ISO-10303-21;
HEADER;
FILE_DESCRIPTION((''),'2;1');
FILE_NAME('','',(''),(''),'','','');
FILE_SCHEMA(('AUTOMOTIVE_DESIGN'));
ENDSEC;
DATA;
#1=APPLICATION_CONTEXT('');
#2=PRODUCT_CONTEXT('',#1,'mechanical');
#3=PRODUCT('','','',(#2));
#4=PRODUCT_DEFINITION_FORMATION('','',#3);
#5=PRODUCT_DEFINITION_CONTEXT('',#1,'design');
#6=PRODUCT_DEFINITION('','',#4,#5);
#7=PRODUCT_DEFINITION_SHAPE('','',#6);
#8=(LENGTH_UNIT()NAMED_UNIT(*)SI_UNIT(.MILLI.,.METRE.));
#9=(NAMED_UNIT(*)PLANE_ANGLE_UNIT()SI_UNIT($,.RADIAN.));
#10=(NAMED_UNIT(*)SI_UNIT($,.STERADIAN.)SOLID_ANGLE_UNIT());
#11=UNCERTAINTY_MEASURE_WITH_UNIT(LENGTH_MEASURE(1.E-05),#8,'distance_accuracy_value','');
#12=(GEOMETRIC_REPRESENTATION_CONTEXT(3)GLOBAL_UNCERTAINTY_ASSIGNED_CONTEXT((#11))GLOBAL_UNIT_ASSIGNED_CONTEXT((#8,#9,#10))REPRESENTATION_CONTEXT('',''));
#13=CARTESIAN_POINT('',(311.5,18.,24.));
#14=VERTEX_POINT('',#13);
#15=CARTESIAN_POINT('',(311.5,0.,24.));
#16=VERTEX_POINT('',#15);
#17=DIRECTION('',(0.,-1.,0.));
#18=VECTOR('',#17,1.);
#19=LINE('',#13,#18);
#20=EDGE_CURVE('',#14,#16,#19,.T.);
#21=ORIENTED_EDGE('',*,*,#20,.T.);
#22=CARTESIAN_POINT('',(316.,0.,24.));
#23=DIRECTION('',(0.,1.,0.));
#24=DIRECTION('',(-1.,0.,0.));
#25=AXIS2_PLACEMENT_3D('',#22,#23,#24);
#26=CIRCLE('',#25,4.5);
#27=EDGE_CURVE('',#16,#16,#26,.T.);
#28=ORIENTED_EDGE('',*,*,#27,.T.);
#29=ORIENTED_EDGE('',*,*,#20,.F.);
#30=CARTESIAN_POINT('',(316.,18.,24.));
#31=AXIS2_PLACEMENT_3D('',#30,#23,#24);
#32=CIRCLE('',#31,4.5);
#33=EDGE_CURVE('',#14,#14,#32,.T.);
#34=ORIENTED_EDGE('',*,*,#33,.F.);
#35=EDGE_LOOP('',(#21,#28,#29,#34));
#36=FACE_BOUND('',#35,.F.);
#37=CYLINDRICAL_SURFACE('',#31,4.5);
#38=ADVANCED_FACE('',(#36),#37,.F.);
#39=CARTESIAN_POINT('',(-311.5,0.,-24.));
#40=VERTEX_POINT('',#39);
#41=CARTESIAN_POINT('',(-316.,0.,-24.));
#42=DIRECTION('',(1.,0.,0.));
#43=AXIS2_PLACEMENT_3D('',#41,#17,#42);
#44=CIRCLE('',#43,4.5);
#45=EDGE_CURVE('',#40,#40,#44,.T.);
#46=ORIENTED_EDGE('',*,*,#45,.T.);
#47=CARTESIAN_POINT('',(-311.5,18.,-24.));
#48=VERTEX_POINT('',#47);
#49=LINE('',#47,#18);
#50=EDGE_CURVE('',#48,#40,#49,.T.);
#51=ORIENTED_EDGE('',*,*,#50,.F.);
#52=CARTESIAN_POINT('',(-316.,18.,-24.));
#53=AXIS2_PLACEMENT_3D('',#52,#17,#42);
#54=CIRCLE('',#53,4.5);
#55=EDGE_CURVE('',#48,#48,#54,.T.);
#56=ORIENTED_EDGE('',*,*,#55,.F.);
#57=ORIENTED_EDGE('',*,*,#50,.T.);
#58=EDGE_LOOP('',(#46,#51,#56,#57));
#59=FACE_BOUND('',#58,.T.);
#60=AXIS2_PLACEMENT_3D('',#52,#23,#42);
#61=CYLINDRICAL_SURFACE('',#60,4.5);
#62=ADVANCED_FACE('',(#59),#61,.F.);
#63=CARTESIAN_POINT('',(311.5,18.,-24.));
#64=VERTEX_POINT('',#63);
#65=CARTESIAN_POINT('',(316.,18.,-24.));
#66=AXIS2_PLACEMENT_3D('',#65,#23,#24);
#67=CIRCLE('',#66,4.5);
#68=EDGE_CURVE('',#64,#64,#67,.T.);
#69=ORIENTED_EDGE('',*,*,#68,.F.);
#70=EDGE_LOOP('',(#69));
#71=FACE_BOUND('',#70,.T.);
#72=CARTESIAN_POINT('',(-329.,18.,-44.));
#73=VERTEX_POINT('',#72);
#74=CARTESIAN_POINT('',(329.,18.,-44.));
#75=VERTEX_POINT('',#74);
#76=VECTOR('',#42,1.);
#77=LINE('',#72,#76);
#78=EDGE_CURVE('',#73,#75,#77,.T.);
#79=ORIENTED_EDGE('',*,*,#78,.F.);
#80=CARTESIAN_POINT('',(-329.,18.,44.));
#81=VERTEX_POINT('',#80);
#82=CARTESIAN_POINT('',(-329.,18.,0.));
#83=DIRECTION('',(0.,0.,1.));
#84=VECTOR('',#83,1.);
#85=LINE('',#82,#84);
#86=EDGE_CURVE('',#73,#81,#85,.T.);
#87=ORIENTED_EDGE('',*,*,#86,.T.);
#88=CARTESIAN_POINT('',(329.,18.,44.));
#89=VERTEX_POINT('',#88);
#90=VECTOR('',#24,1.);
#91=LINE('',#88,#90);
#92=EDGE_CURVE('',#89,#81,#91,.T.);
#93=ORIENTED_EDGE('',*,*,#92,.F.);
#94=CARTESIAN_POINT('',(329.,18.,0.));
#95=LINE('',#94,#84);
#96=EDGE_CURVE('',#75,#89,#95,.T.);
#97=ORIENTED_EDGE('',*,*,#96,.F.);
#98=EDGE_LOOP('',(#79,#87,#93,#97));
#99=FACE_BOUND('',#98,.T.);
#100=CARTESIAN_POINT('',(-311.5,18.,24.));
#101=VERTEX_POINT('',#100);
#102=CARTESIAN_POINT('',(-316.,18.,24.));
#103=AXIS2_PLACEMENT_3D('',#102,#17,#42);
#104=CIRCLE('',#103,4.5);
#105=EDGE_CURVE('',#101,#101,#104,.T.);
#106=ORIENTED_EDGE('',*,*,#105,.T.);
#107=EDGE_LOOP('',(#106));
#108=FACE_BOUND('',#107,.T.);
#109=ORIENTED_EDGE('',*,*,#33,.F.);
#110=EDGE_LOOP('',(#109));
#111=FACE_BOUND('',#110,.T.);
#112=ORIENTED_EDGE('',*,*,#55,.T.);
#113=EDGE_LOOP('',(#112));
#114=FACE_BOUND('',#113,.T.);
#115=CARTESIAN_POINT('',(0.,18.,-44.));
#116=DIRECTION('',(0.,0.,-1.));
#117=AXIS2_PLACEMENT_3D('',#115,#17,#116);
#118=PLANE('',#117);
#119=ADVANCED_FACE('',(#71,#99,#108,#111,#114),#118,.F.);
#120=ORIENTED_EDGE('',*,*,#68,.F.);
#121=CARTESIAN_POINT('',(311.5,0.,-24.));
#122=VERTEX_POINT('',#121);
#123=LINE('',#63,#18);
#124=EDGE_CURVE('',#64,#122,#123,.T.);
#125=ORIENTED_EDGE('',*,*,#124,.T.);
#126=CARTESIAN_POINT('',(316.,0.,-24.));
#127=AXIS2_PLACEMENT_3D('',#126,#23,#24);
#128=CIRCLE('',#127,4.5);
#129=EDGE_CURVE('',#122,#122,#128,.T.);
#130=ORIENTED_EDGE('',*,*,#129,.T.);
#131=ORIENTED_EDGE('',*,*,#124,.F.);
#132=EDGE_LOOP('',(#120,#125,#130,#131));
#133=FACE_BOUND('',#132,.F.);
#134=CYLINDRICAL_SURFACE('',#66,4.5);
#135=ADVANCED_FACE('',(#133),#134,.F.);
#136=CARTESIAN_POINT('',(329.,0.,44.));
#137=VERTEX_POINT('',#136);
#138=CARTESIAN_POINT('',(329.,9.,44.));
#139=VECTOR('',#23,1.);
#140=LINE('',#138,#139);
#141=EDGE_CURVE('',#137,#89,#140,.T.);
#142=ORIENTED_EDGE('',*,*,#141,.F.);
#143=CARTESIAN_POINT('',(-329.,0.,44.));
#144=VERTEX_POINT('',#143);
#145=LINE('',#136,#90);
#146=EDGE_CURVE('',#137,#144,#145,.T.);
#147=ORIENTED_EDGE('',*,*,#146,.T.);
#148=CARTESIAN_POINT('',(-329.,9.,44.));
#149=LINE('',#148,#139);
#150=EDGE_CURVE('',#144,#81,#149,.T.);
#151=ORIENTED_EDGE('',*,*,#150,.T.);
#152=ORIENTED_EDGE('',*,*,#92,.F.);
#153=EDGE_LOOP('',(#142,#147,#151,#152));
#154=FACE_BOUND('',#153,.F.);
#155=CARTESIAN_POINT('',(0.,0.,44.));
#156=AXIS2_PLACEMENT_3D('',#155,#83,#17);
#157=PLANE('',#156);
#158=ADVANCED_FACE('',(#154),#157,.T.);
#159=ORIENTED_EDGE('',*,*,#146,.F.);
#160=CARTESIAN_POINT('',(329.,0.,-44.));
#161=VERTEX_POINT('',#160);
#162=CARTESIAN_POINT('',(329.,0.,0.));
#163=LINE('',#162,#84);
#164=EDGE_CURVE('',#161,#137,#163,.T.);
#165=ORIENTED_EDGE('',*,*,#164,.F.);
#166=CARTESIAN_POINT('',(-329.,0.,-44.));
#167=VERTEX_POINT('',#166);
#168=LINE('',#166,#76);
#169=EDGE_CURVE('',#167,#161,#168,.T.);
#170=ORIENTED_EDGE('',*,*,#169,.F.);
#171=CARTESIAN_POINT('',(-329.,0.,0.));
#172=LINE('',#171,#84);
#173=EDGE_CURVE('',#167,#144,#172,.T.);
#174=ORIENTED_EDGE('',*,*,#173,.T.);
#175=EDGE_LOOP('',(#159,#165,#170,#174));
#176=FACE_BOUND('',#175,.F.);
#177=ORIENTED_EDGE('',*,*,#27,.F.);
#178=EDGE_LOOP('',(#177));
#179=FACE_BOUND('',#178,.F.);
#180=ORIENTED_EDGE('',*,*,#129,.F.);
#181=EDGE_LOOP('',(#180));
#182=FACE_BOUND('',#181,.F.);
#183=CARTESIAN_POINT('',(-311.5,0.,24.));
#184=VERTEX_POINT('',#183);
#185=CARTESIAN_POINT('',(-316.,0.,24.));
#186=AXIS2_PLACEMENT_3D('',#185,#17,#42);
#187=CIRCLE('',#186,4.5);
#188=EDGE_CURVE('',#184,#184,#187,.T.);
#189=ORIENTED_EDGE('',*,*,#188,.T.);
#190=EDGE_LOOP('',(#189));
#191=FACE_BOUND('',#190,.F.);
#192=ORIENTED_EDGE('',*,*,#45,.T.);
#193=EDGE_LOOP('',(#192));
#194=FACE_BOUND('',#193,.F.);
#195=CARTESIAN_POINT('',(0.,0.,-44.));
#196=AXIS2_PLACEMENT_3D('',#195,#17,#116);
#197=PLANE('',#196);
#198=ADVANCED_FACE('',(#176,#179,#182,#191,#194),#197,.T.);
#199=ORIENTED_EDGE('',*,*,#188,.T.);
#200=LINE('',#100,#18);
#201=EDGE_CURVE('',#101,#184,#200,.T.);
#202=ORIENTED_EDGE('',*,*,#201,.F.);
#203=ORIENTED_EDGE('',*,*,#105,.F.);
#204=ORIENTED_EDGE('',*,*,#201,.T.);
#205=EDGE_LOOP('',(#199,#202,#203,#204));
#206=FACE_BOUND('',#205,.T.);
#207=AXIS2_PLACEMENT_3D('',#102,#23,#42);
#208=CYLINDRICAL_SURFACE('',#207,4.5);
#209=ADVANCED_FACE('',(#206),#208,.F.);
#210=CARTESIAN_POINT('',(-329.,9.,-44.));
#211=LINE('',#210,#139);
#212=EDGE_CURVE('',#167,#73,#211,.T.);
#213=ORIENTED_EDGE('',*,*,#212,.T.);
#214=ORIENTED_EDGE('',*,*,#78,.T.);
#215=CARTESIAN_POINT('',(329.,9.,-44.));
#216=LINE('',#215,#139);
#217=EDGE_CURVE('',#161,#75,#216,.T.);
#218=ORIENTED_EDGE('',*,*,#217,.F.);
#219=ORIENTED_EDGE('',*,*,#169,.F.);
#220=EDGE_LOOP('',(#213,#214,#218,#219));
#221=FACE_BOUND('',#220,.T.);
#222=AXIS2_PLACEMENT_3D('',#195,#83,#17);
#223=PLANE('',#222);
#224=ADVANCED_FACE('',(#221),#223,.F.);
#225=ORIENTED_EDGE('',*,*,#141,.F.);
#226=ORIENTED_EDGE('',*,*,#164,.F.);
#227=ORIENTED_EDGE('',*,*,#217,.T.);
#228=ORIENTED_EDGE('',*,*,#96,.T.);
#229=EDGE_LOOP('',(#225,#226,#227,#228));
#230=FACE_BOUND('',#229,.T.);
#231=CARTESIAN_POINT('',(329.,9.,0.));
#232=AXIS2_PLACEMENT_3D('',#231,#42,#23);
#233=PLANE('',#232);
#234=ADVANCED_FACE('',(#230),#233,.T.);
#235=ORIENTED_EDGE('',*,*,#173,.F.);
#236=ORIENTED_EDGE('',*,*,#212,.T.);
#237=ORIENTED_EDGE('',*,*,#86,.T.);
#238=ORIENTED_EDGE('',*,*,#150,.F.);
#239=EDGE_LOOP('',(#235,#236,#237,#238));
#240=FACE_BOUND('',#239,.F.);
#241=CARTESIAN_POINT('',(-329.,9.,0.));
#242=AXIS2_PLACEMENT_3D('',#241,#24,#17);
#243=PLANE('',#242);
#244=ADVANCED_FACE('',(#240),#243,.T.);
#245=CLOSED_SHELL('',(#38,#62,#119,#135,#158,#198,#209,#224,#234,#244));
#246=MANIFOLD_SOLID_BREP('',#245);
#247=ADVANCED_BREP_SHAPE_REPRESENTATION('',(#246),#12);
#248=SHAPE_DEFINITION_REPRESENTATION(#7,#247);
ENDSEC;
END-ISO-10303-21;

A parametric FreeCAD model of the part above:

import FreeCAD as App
import Part
import Sketcher
from FreeCAD import Vector
Q = App.Units.Quantity

doc = App.newDocument("Part")
params = doc.addObject("Spreadsheet::Sheet", "Params")
for row, (alias, value) in enumerate([
    ("sketch1_width", "18 mm"),
    ("sketch1_height", "88 mm"),
    ("pad1_length", "329 mm"),
    ("sketch2_diameter", "9 mm"),
], start=1):
    params.set(f"A{row}", alias)
    params.set(f"B{row}", "=" + value)
    params.setAlias(f"B{row}", alias)

body = doc.addObject("PartDesign::Body", "Body")

# Sketch on YZ plane
sketch1 = body.newObject("Sketcher::SketchObject", "Sketch")
sketch1.AttachmentSupport = (doc.getObject("YZ_Plane"), [""])
sketch1.MapMode = "FlatFace"
sketch1.addGeometry([
    Part.LineSegment(Vector(0, 44, 0), Vector(0, -44, 0)),
    Part.LineSegment(Vector(0, -44, 0), Vector(18, -44, 0)),
    Part.LineSegment(Vector(18, -44, 0), Vector(18, 44, 0)),
    Part.LineSegment(Vector(18, 44, 0), Vector(0, 44, 0)),
], False)
sketch1.addConstraint([
    Sketcher.Constraint("Coincident", 0, 2, 1, 1),
    Sketcher.Constraint("Coincident", 1, 2, 2, 1),
    Sketcher.Constraint("Coincident", 2, 2, 3, 1),
    Sketcher.Constraint("Coincident", 3, 2, 0, 1),
    Sketcher.Constraint("Vertical", 0),
    Sketcher.Constraint("Horizontal", 1),
    Sketcher.Constraint("Vertical", 2),
    Sketcher.Constraint("Horizontal", 3),
    Sketcher.Constraint("Symmetric", 0, 2, 3, 2, -1, 1),
    Sketcher.Constraint("DistanceX", 1, 1, 1, 2, Q("18 mm")),
    Sketcher.Constraint("DistanceY", 0, 2, 0, 1, Q("88 mm")),
])
sketch1.setExpression("Constraints[9]", "Params.sketch1_width")
sketch1.setExpression("Constraints[10]", "Params.sketch1_height")
pad1 = body.newObject("PartDesign::Pad", "Pad")
pad1.Profile = sketch1
pad1.setExpression("Length", "Params.pad1_length")

# Sketch on XZ plane
sketch2 = body.newObject("Sketcher::SketchObject", "Sketch001")
sketch2.AttachmentSupport = (doc.getObject("XZ_Plane"), [""])
sketch2.MapMode = "FlatFace"
sketch2.AttachmentOffset = App.Placement(Vector(0, 0, -18), App.Rotation())
sketch2.addGeometry([
    Part.Circle(Vector(316, 24, 0), Vector(0, 0, 1), 4.5),
    Part.Circle(Vector(316, -24, 0), Vector(0, 0, 1), 4.5),
], False)
sketch2.addConstraint([
    Sketcher.Constraint("Equal", 0, 1),
    Sketcher.Constraint("Symmetric", 0, 3, 1, 3, -1),
    Sketcher.Constraint("Diameter", 0, Q("9 mm")),
    Sketcher.Constraint("DistanceX", -1, 1, 0, 3, Q("316 mm")),
    Sketcher.Constraint("DistanceY", -1, 1, 0, 3, Q("24 mm")),
])
sketch2.setExpression("Constraints[2]", "Params.sketch2_diameter")
pocket1 = body.newObject("PartDesign::Pocket", "Pocket")
pocket1.Profile = sketch2
pocket1.Type = "ThroughAll"
pocket1.Reversed = True
body2 = doc.addObject("PartDesign::Body", "Body001")
doc.recompute()

body2.BaseFeature = body
doc.recompute()

mirroring = doc.addObject("Part::Mirroring", "Mirroring")
mirroring.Source = body
mirroring.Base = Vector(0, 0, 0)
mirroring.Normal = Vector(1, 0, 0)
body3 = doc.addObject("PartDesign::Body", "Body002")
body3.BaseFeature = mirroring
boolean = body2.newObject("PartDesign::Boolean", "Boolean")
boolean.Type = "Fuse"
boolean.addObjects([body3])
doc.recompute()
mirroring.Visibility = False

doc.recompute()
